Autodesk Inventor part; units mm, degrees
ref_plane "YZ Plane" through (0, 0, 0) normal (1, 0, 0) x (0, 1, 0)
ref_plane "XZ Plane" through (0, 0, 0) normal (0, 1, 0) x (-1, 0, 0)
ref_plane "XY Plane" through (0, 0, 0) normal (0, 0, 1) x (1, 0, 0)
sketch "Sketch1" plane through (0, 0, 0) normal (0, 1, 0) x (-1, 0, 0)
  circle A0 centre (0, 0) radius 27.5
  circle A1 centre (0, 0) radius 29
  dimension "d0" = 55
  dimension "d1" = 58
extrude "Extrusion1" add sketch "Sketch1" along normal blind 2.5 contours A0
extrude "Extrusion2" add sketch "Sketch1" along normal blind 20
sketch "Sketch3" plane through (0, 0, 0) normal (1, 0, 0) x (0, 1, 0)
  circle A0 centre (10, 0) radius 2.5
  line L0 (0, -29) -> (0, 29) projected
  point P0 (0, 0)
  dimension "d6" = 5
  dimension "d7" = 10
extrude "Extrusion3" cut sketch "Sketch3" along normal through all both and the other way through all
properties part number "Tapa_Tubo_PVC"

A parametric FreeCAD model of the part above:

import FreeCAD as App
import Part
import Sketcher

V = App.Vector

doc = App.newDocument("Part")
body = doc.addObject("PartDesign::Body", "Body")

sketch1 = doc.addObject("Sketcher::SketchObject", "Sketch")
body.addObject(sketch1)
sketch1.AttachmentSupport = (doc.XZ_Plane, [""])
sketch1.MapMode = "FlatFace"
sketch1.addGeometry(Part.Circle(V(0, 0, 0), V(0, 0, 1), 28), False)
sketch1.addConstraint(Sketcher.Constraint("Coincident", 0, 3, -1, 1))
sketch1.addConstraint(Sketcher.Constraint("Diameter", 0, 55.0))
pad1 = doc.addObject("PartDesign::Pad", "Pad")
body.addObject(pad1)
pad1.Profile = sketch1
pad1.Length = 2.5
pad1.Reversed = True

sketch2 = doc.addObject("Sketcher::SketchObject", "Sketch001")
body.addObject(sketch2)
sketch2.AttachmentSupport = (doc.XZ_Plane, [""])
sketch2.MapMode = "FlatFace"
sketch2.addGeometry(Part.Circle(V(0, 0, 0), V(0, 0, 1), 29), False)
sketch2.addGeometry(Part.Circle(V(0, 0, 0), V(0, 0, 1), 28), False)
sketch2.addConstraint(Sketcher.Constraint("Coincident", 0, 3, -1, 1))
sketch2.addConstraint(Sketcher.Constraint("Coincident", 1, 3, -1, 1))
sketch2.addConstraint(Sketcher.Constraint("Diameter", 0, 58.0))
sketch2.addConstraint(Sketcher.Constraint("Diameter", 1, 55.0))
pad2 = doc.addObject("PartDesign::Pad", "Pad001")
body.addObject(pad2)
pad2.Profile = sketch2
pad2.Length = 20
pad2.Reversed = True

sketch3 = doc.addObject("Sketcher::SketchObject", "Sketch002")
body.addObject(sketch3)
sketch3.AttachmentSupport = (doc.YZ_Plane, [""])
sketch3.MapMode = "FlatFace"
sketch3.addGeometry(Part.Circle(V(10, 0, 0), V(0, 0, 1), 2.5), False)
sketch3.addConstraint(Sketcher.Constraint("PointOnObject", 0, 3, -1))
sketch3.addConstraint(Sketcher.Constraint("Diameter", 0, 5.0))
sketch3.addConstraint(Sketcher.Constraint("DistanceX", -1, 1, 0, 3, 10.0))
pocket1 = doc.addObject("PartDesign::Pocket", "Pocket")
body.addObject(pocket1)
pocket1.Profile = sketch3
pocket1.Type = "ThroughAll"
pocket1.Midplane = True

doc.recompute()
